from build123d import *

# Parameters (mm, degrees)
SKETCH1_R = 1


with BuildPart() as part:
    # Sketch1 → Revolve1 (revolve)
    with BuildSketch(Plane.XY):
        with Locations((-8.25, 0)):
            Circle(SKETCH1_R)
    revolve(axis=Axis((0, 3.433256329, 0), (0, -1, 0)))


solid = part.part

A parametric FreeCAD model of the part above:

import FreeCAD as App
import Part
import Sketcher
from FreeCAD import Vector
Q = App.Units.Quantity

doc = App.newDocument("Part")
params = doc.addObject("Spreadsheet::Sheet", "Params")
for row, (alias, value) in enumerate([
    ("sketch1_diameter", "2 mm"),
    ("revolution_angle", "360 deg"),
], start=1):
    params.set(f"A{row}", alias)
    params.set(f"B{row}", "=" + value)
    params.setAlias(f"B{row}", alias)

body = doc.addObject("PartDesign::Body", "Body")

# Sketch on XY plane
sketch1 = doc.addObject("Sketcher::SketchObject", "Sketch")
body.addObject(sketch1)
sketch1.AttachmentSupport = (doc.XY_Plane, [""])
sketch1.MapMode = "FlatFace"
sketch1.addGeometry(Part.Circle(Vector(-8.2, 0, 0), Vector(0, 0, 1), 1), False)
sketch1.addConstraint(Sketcher.Constraint("PointOnObject", 0, 3, -1))
sketch1.addConstraint(Sketcher.Constraint("Diameter", 0, Q("2 mm")))
sketch1.addConstraint(Sketcher.Constraint("DistanceX", 0, 3, -1, 1, Q("8.25 mm")))
sketch1.setExpression("Constraints[1]", "Params.sketch1_diameter")
revolution = doc.addObject("PartDesign::Revolution", "Revolution")
body.addObject(revolution)
revolution.Profile = sketch1
revolution.ReferenceAxis = (sketch1, ["V_Axis"])
revolution.setExpression("Angle", "Params.revolution_angle")

doc.recompute()
